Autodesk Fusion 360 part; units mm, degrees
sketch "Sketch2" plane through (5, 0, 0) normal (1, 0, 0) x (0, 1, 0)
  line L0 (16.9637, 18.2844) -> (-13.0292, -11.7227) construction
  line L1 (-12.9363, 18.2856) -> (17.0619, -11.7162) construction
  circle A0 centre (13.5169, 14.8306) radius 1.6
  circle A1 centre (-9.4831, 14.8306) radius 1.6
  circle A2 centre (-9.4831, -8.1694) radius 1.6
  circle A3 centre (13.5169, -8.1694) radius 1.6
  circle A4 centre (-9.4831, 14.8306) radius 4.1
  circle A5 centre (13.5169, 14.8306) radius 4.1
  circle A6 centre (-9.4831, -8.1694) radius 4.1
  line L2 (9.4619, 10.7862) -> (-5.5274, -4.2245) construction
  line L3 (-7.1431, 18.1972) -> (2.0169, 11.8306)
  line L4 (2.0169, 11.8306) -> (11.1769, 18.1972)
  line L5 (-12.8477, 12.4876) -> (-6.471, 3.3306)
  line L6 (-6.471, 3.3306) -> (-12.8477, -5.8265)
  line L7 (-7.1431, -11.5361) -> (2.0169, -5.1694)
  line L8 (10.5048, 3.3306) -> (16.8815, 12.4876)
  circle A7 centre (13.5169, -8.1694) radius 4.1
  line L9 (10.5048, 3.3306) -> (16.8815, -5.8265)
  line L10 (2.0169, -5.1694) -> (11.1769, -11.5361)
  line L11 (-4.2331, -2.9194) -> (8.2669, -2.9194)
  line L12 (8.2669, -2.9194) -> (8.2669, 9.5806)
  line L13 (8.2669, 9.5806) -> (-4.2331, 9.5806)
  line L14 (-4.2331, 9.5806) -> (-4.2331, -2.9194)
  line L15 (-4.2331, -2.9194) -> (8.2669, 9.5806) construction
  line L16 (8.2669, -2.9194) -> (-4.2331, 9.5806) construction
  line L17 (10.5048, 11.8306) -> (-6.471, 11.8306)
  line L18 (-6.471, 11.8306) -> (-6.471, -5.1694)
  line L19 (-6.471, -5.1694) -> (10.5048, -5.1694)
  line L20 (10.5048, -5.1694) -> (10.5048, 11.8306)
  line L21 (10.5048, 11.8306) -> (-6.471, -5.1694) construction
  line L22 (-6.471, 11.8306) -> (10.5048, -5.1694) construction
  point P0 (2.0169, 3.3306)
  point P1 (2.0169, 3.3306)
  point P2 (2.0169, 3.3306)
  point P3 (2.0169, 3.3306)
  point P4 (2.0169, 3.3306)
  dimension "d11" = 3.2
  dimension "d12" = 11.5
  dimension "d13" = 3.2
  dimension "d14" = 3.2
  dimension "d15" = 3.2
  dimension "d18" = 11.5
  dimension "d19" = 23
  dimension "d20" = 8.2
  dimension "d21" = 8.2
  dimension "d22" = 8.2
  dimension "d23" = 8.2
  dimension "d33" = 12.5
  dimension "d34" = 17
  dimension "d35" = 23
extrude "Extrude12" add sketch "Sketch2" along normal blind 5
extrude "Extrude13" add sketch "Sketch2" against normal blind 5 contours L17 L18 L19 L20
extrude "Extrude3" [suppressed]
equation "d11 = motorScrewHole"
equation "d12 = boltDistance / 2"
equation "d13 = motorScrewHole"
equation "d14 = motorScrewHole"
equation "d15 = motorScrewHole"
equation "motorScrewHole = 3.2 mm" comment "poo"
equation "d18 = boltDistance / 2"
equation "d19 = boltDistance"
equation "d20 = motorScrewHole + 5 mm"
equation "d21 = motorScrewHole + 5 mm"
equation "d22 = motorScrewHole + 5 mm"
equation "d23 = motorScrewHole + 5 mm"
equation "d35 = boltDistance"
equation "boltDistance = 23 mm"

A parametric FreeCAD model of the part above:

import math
import FreeCAD as App
import Part
import Sketcher

V = App.Vector
Q = App.Units.Quantity

doc = App.newDocument("Part")
body = doc.addObject("PartDesign::Body", "Body")

# Sketch on YZ plane
sketch1 = body.newObject("Sketcher::SketchObject", "Sketch")
sketch1.AttachmentSupport = (doc.getObject("YZ_Plane"), [""])
sketch1.MapMode = "FlatFace"
sketch1.AttachmentOffset = App.Placement(V(0, 0, 5), App.Rotation())
sketch1.addGeometry([
    Part.ArcOfCircle(Part.Circle(V(-9.5, 14.8, 0), V(0, 0, 1), 4.1), math.radians(55), math.radians(215)),  # 0
    Part.LineSegment(V(-12.8, 12.5, 0), V(-6.5, 3.3, 0)),  # 1
    Part.LineSegment(V(-6.5, 3.3, 0), V(-12.8, -5.8, 0)),  # 2
    Part.ArcOfCircle(Part.Circle(V(-9.5, -8.2, 0), V(0, 0, 1), 4.1), math.radians(145), math.radians(305)),  # 3
    Part.LineSegment(V(-7.1, -11.5, 0), V(2, -5.2, 0)),  # 4
    Part.LineSegment(V(2, -5.2, 0), V(11.2, -11.5, 0)),  # 5
    Part.ArcOfCircle(Part.Circle(V(13.5, -8.2, 0), V(0, 0, 1), 4.1), math.radians(-125), math.radians(35)),  # 6
    Part.LineSegment(V(16.9, -5.8, 0), V(10.5, 3.3, 0)),  # 7
    Part.LineSegment(V(10.5, 3.3, 0), V(16.9, 12.5, 0)),  # 8
    Part.ArcOfCircle(Part.Circle(V(13.5, 14.8, 0), V(0, 0, 1), 4.1), math.radians(-35), math.radians(125)),  # 9
    Part.LineSegment(V(11.2, 18.2, 0), V(2, 11.8, 0)),  # 10
    Part.LineSegment(V(2, 11.8, 0), V(-7.1, 18.2, 0)),  # 11
    Part.Circle(V(-9.5, 14.8, 0), V(0, 0, 1), 1.6),  # 12
    Part.LineSegment(V(-4.2, 9.6, 0), V(8.3, 9.6, 0)),  # 13
    Part.LineSegment(V(8.3, 9.6, 0), V(8.3, -2.9, 0)),  # 14
    Part.LineSegment(V(8.3, -2.9, 0), V(-4.2, -2.9, 0)),  # 15
    Part.LineSegment(V(-4.2, -2.9, 0), V(-4.2, 9.6, 0)),  # 16
    Part.Circle(V(13.5, 14.8, 0), V(0, 0, 1), 1.6),  # 17
    Part.Circle(V(13.5, -8.2, 0), V(0, 0, 1), 1.6),  # 18
    Part.Circle(V(-9.5, -8.2, 0), V(0, 0, 1), 1.6),  # 19
], False)
sketch1.addConstraint([
    Sketcher.Constraint("Tangent", 0, 2, 1, 1),
    Sketcher.Constraint("Coincident", 1, 2, 2, 1),
    Sketcher.Constraint("Tangent", 2, 2, 3, 1),
    Sketcher.Constraint("Tangent", 3, 2, 4, 1),
    Sketcher.Constraint("Coincident", 4, 2, 5, 1),
    Sketcher.Constraint("Tangent", 5, 2, 6, 1),
    Sketcher.Constraint("Tangent", 6, 2, 7, 1),
    Sketcher.Constraint("Coincident", 7, 2, 8, 1),
    Sketcher.Constraint("Tangent", 8, 2, 9, 1),
    Sketcher.Constraint("Tangent", 9, 2, 10, 1),
    Sketcher.Constraint("Coincident", 10, 2, 11, 1),
    Sketcher.Constraint("Tangent", 11, 2, 0, 1),
    Sketcher.Constraint("Coincident", 13, 2, 14, 1),
    Sketcher.Constraint("Coincident", 14, 2, 15, 1),
    Sketcher.Constraint("Coincident", 15, 2, 16, 1),
    Sketcher.Constraint("Coincident", 16, 2, 13, 1),
    Sketcher.Constraint("Horizontal", 13),
    Sketcher.Constraint("Vertical", 14),
    Sketcher.Constraint("Horizontal", 15),
    Sketcher.Constraint("Vertical", 16),
    Sketcher.Constraint("Coincident", 12, 3, 0, 3),
    Sketcher.Constraint("Coincident", 17, 3, 9, 3),
    Sketcher.Constraint("Coincident", 18, 3, 6, 3),
    Sketcher.Constraint("Coincident", 19, 3, 3, 3),
    Sketcher.Constraint("Equal", 0, 3),
    Sketcher.Constraint("Equal", 3, 6),
    Sketcher.Constraint("Equal", 6, 9),
    Sketcher.Constraint("Equal", 12, 17),
    Sketcher.Constraint("Equal", 17, 18),
    Sketcher.Constraint("Equal", 18, 19),
    Sketcher.Constraint("Parallel", 1, 7),
    Sketcher.Constraint("Parallel", 2, 8),
    Sketcher.Constraint("Parallel", 4, 10),
    Sketcher.Constraint("Parallel", 5, 11),
    Sketcher.Constraint("Horizontal", 3, 3, 6, 3),
    Sketcher.Constraint("Horizontal", 0, 3, 9, 3),
    Sketcher.Constraint("Horizontal", 3, 2, 5, 2),
    Sketcher.Constraint("Horizontal", 2, 2, 6, 2),
    Sketcher.Constraint("Horizontal", 1, 2, 7, 2),
    Sketcher.Constraint("Vertical", 0, 3, 3, 3),
    Sketcher.Constraint("Equal", 15, 14),
    Sketcher.Constraint("Diameter", 12, 3.2),
    Sketcher.Constraint("Radius", 0, 4.1),
    Sketcher.Constraint("DistanceX", 13, 1, 13, 2, 12.5),
    Sketcher.Constraint("DistanceY", 3, 3, 0, 3, 23.0),
    Sketcher.Constraint("DistanceX", 3, 3, 6, 3, 23.0),
    Sketcher.Constraint("Angle", 10, Q("-145.199 deg")),
    Sketcher.Constraint("DistanceY", 7, 2, 13, 2, 6.25),
    Sketcher.Constraint("DistanceX", 10, 2, 13, 2, 6.25),
    Sketcher.Constraint("DistanceX", 0, 3, -1, 1, 9.483),
    Sketcher.Constraint("DistanceX", 1, 2, -1, 1, 6.471),
    Sketcher.Constraint("DistanceY", 3, 2, -1, 1, 11.536),
])
pad1 = body.newObject("PartDesign::Pad", "Pad")
pad1.Profile = sketch1
pad1.Length = 5

# Sketch on YZ plane
sketch2 = body.newObject("Sketcher::SketchObject", "Sketch001")
sketch2.AttachmentSupport = (doc.getObject("YZ_Plane"), [""])
sketch2.MapMode = "FlatFace"
sketch2.AttachmentOffset = App.Placement(V(0, 0, 5), App.Rotation())
sketch2.addGeometry([
    Part.LineSegment(V(11, 12, 0), V(-6, 12, 0)),  # 0
    Part.LineSegment(V(-6, 12, 0), V(-6, -5, 0)),  # 1
    Part.LineSegment(V(-6, -5, 0), V(11, -5, 0)),  # 2
    Part.LineSegment(V(11, -5, 0), V(11, 12, 0)),  # 3
    Part.LineSegment(V(8, -3, 0), V(-4, -3, 0)),  # 4
    Part.LineSegment(V(-4, -3, 0), V(-4, 10, 0)),  # 5
    Part.LineSegment(V(-4, 10, 0), V(8, 10, 0)),  # 6
    Part.LineSegment(V(8, 10, 0), V(8, -3, 0)),  # 7
], False)
sketch2.addConstraint([
    Sketcher.Constraint("Coincident", 0, 2, 1, 1),
    Sketcher.Constraint("Coincident", 1, 2, 2, 1),
    Sketcher.Constraint("Coincident", 2, 2, 3, 1),
    Sketcher.Constraint("Coincident", 3, 2, 0, 1),
    Sketcher.Constraint("Coincident", 4, 2, 5, 1),
    Sketcher.Constraint("Coincident", 5, 2, 6, 1),
    Sketcher.Constraint("Coincident", 6, 2, 7, 1),
    Sketcher.Constraint("Coincident", 7, 2, 4, 1),
    Sketcher.Constraint("Horizontal", 0),
    Sketcher.Constraint("Vertical", 1),
    Sketcher.Constraint("Horizontal", 2),
    Sketcher.Constraint("Vertical", 3),
    Sketcher.Constraint("Horizontal", 4),
    Sketcher.Constraint("Vertical", 5),
    Sketcher.Constraint("Horizontal", 6),
    Sketcher.Constraint("Vertical", 7),
    Sketcher.Constraint("Equal", 6, 5),
    Sketcher.Constraint("DistanceY", 1, 2, 1, 1, 17.0),
    Sketcher.Constraint("DistanceX", 4, 2, 4, 1, 12.5),
    Sketcher.Constraint("DistanceY", 1, 2, 4, 2, 2.25),
    Sketcher.Constraint("DistanceX", 0, 2, 0, 1, 16.9758),
    Sketcher.Constraint("DistanceX", 0, 2, -1, 1, 6.471),
    Sketcher.Constraint("DistanceX", 4, 2, -1, 1, 4.233),
    Sketcher.Constraint("DistanceY", -1, 1, 0, 2, 11.8306),
])
pad2 = body.newObject("PartDesign::Pad", "Pad001")
pad2.Profile = sketch2
pad2.Length = 5
pad2.Reversed = True

doc.recompute()
